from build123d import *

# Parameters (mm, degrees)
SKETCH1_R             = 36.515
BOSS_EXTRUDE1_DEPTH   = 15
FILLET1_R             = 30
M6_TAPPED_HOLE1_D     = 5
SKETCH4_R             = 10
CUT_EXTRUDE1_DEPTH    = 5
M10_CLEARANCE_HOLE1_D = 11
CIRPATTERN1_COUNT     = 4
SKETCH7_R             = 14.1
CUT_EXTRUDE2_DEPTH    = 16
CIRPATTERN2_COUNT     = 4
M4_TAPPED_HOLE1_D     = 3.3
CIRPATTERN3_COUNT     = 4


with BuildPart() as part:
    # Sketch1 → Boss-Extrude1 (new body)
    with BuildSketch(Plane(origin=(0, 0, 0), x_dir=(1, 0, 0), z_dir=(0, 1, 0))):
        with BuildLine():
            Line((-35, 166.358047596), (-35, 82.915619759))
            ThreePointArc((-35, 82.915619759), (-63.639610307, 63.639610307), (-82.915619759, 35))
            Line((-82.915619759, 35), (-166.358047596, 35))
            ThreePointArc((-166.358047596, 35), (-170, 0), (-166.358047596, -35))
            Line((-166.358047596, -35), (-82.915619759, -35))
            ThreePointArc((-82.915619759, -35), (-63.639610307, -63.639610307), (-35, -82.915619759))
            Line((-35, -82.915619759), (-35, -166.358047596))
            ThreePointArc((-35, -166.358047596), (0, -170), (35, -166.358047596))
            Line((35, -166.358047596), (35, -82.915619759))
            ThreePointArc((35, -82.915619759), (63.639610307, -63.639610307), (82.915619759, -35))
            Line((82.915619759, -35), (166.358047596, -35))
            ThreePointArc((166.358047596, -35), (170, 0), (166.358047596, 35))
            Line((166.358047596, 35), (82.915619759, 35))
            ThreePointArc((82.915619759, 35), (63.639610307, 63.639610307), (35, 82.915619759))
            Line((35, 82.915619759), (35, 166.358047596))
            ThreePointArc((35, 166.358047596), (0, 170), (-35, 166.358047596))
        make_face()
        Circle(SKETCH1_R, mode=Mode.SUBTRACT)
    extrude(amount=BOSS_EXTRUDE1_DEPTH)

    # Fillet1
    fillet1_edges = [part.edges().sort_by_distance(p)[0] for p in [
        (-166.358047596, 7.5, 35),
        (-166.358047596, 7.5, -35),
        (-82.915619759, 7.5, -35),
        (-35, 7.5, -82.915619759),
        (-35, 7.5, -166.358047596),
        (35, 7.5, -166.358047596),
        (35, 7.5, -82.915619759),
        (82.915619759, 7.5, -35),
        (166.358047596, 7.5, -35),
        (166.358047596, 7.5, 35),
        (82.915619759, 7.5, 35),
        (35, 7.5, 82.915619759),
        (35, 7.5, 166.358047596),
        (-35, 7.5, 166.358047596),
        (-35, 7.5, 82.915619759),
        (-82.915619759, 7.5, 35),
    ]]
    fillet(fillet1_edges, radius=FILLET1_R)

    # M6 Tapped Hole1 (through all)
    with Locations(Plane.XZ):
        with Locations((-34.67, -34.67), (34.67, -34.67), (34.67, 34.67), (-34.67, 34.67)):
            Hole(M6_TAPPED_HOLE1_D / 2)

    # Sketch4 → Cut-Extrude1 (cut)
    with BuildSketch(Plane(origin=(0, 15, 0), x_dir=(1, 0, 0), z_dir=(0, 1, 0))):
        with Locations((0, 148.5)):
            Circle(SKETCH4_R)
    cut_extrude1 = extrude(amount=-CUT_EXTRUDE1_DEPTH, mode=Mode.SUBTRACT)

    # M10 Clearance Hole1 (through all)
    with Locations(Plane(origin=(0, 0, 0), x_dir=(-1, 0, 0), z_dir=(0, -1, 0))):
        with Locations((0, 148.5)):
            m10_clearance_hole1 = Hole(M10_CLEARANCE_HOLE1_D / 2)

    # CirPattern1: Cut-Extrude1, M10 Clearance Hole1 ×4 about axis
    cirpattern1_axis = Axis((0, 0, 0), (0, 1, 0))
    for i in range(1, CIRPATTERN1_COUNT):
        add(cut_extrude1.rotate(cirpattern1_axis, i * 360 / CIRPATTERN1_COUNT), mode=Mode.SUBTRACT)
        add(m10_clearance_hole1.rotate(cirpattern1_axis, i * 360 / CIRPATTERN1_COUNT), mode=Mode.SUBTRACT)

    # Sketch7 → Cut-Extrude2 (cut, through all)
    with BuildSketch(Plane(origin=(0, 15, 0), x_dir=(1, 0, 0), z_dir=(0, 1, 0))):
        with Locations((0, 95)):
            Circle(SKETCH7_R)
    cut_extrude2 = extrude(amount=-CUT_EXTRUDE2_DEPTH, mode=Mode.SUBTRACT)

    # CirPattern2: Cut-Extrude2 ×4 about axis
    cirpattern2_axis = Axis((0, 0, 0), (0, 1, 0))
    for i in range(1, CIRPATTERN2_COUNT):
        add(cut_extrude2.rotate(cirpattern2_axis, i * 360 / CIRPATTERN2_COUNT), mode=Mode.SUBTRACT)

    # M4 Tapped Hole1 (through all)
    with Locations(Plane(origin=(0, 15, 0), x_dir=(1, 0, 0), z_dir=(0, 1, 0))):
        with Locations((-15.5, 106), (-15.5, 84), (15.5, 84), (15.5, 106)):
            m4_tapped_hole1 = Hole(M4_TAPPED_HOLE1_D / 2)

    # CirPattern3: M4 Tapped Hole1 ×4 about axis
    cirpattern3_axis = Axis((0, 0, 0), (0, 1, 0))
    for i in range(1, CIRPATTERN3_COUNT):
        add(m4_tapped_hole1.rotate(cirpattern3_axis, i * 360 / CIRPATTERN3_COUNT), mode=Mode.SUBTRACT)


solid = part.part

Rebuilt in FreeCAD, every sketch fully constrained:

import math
import FreeCAD as App
import Part
import Sketcher

V = App.Vector


def edges_at(feature, points):
    """Names of the edges that pass closest to the given points."""
    edges = feature.Shape.Edges
    near = lambda p: min(range(len(edges)), key=lambda i: edges[i].distToShape(Part.Vertex(*p))[0])
    return sorted({f"Edge{near(p) + 1}" for p in points})

doc = App.newDocument("Part")
params = doc.addObject("Spreadsheet::Sheet", "Params")
for row, (alias, value) in enumerate([
    ("sketch1_radius", "90 mm"),
    ("sketch1_radius2", "170 mm"),
    ("sketch1_diameter", "73.03 mm"),
    ("pad1_length", "15 mm"),
    ("fillet_radius", "30 mm"),
    ("sketch2_diameter", "5 mm"),
    ("hole_diameter", "5 mm"),
    ("sketch3_diameter", "20 mm"),
    ("pocket1_length", "5 mm"),
    ("sketch4_diameter", "11 mm"),
    ("hole2_diameter", "11 mm"),
    ("sketch5_diameter", "28.2 mm"),
    ("sketch6_diameter", "3.3 mm"),
    ("hole3_diameter", "3.3 mm"),
], start=1):
    params.set(f"A{row}", alias)
    params.set(f"B{row}", "=" + value)
    params.setAlias(f"B{row}", alias)

body = doc.addObject("PartDesign::Body", "Body")

# Sketch on XZ plane
sketch1 = doc.addObject("Sketcher::SketchObject", "Sketch")
body.addObject(sketch1)
sketch1.AttachmentSupport = (doc.XZ_Plane, [""])
sketch1.MapMode = "FlatFace"
sketch1.addGeometry(Part.LineSegment(V(-35, -166, 0), V(-35, -83, 0)), False)
sketch1.addGeometry(Part.ArcOfCircle(Part.Circle(V(0, 0, 0), V(0, 0, 1), 90), math.radians(-157), math.radians(-113)), False)
sketch1.addGeometry(Part.LineSegment(V(-83, -35, 0), V(-166, -35, 0)), False)
sketch1.addGeometry(Part.ArcOfCircle(Part.Circle(V(0, 0, 0), V(0, 0, 1), 170), math.radians(168), math.radians(192)), False)
sketch1.addGeometry(Part.LineSegment(V(-166, 35, 0), V(-83, 35, 0)), False)
sketch1.addGeometry(Part.ArcOfCircle(Part.Circle(V(0, 0, 0), V(0, 0, 1), 90), math.radians(113), math.radians(157)), False)
sketch1.addGeometry(Part.LineSegment(V(-35, 83, 0), V(-35, 166, 0)), False)
sketch1.addGeometry(Part.ArcOfCircle(Part.Circle(V(0, 0, 0), V(0, 0, 1), 170), math.radians(78), math.radians(102)), False)
sketch1.addGeometry(Part.LineSegment(V(35, 166, 0), V(35, 83, 0)), False)
sketch1.addGeometry(Part.ArcOfCircle(Part.Circle(V(0, 0, 0), V(0, 0, 1), 90), math.radians(23), math.radians(67)), False)
sketch1.addGeometry(Part.LineSegment(V(83, 35, 0), V(166, 35, 0)), False)
sketch1.addGeometry(Part.ArcOfCircle(Part.Circle(V(0, 0, 0), V(0, 0, 1), 170), math.radians(-12), math.radians(12)), False)
sketch1.addGeometry(Part.LineSegment(V(166, -35, 0), V(83, -35, 0)), False)
sketch1.addGeometry(Part.ArcOfCircle(Part.Circle(V(0, 0, 0), V(0, 0, 1), 90), math.radians(-67), math.radians(-23)), False)
sketch1.addGeometry(Part.LineSegment(V(35, -83, 0), V(35, -166, 0)), False)
sketch1.addGeometry(Part.ArcOfCircle(Part.Circle(V(0, 0, 0), V(0, 0, 1), 170), math.radians(-102), math.radians(-78)), False)
sketch1.addGeometry(Part.Circle(V(0, 0, 0), V(0, 0, 1), 37), False)
sketch1.addConstraint(Sketcher.Constraint("Coincident", 0, 2, 1, 2))
sketch1.addConstraint(Sketcher.Constraint("Coincident", 1, 1, 2, 1))
sketch1.addConstraint(Sketcher.Constraint("Coincident", 2, 2, 3, 2))
sketch1.addConstraint(Sketcher.Constraint("Coincident", 3, 1, 4, 1))
sketch1.addConstraint(Sketcher.Constraint("Coincident", 4, 2, 5, 2))
sketch1.addConstraint(Sketcher.Constraint("Coincident", 5, 1, 6, 1))
sketch1.addConstraint(Sketcher.Constraint("Coincident", 6, 2, 7, 2))
sketch1.addConstraint(Sketcher.Constraint("Coincident", 7, 1, 8, 1))
sketch1.addConstraint(Sketcher.Constraint("Coincident", 8, 2, 9, 2))
sketch1.addConstraint(Sketcher.Constraint("Coincident", 9, 1, 10, 1))
sketch1.addConstraint(Sketcher.Constraint("Coincident", 10, 2, 11, 2))
sketch1.addConstraint(Sketcher.Constraint("Coincident", 11, 1, 12, 1))
sketch1.addConstraint(Sketcher.Constraint("Coincident", 12, 2, 13, 2))
sketch1.addConstraint(Sketcher.Constraint("Coincident", 13, 1, 14, 1))
sketch1.addConstraint(Sketcher.Constraint("Coincident", 14, 2, 15, 2))
sketch1.addConstraint(Sketcher.Constraint("Coincident", 15, 1, 0, 1))
sketch1.addConstraint(Sketcher.Constraint("Vertical", 0))
sketch1.addConstraint(Sketcher.Constraint("Horizontal", 2))
sketch1.addConstraint(Sketcher.Constraint("Horizontal", 4))
sketch1.addConstraint(Sketcher.Constraint("Vertical", 6))
sketch1.addConstraint(Sketcher.Constraint("Vertical", 8))
sketch1.addConstraint(Sketcher.Constraint("Horizontal", 10))
sketch1.addConstraint(Sketcher.Constraint("Horizontal", 12))
sketch1.addConstraint(Sketcher.Constraint("Vertical", 14))
sketch1.addConstraint(Sketcher.Constraint("Coincident", 1, 3, -1, 1))
sketch1.addConstraint(Sketcher.Constraint("Coincident", 3, 3, -1, 1))
sketch1.addConstraint(Sketcher.Constraint("Coincident", 5, 3, -1, 1))
sketch1.addConstraint(Sketcher.Constraint("Coincident", 7, 3, -1, 1))
sketch1.addConstraint(Sketcher.Constraint("Coincident", 9, 3, -1, 1))
sketch1.addConstraint(Sketcher.Constraint("Coincident", 11, 3, -1, 1))
sketch1.addConstraint(Sketcher.Constraint("Coincident", 13, 3, -1, 1))
sketch1.addConstraint(Sketcher.Constraint("Coincident", 15, 3, -1, 1))
sketch1.addConstraint(Sketcher.Constraint("Coincident", 16, 3, -1, 1))
sketch1.addConstraint(Sketcher.Constraint("Equal", 1, 5))
sketch1.addConstraint(Sketcher.Constraint("Equal", 3, 7))
sketch1.addConstraint(Sketcher.Constraint("Equal", 5, 9))
sketch1.addConstraint(Sketcher.Constraint("Equal", 7, 11))
sketch1.addConstraint(Sketcher.Constraint("Equal", 9, 13))
sketch1.addConstraint(Sketcher.Constraint("Equal", 11, 15))
sketch1.addConstraint(Sketcher.Constraint("Horizontal", 6, 2, 7, 1))
sketch1.addConstraint(Sketcher.Constraint("Horizontal", 4, 2, 9, 1))
sketch1.addConstraint(Sketcher.Constraint("Horizontal", 2, 2, 11, 1))
sketch1.addConstraint(Sketcher.Constraint("Horizontal", 0, 2, 13, 1))
sketch1.addConstraint(Sketcher.Constraint("Vertical", 2, 2, 3, 1))
sketch1.addConstraint(Sketcher.Constraint("Vertical", 0, 2, 5, 1))
sketch1.addConstraint(Sketcher.Constraint("Equal", 12, 0))
sketch1.addConstraint(Sketcher.Constraint("Radius", 1, 90.0))
sketch1.addConstraint(Sketcher.Constraint("Radius", 3, 170.0))
sketch1.addConstraint(Sketcher.Constraint("Diameter", 16, 73.03))
sketch1.addConstraint(Sketcher.Constraint("DistanceX", 0, 2, -1, 1, 35.0))
sketch1.setExpression("Constraints[46]", "Params.sketch1_radius")
sketch1.setExpression("Constraints[47]", "Params.sketch1_radius2")
sketch1.setExpression("Constraints[48]", "Params.sketch1_diameter")
pad1 = doc.addObject("PartDesign::Pad", "Pad")
body.addObject(pad1)
pad1.Profile = sketch1
pad1.setExpression("Length", "Params.pad1_length")
pad1.Reversed = True
doc.recompute()

fillet = doc.addObject("PartDesign::Fillet", "Fillet")
body.addObject(fillet)
fillet.Base = (pad1, edges_at(pad1, [
    (-166.358, 7.5, 35),
    (-166.358, 7.5, -35),
    (-82.916, 7.5, -35),
    (-35, 7.5, -82.916),
    (-35, 7.5, -166.358),
    (35, 7.5, -166.358),
    (35, 7.5, -82.916),
    (82.916, 7.5, -35),
    (166.358, 7.5, -35),
    (166.358, 7.5, 35),
    (82.916, 7.5, 35),
    (35, 7.5, 82.916),
    (35, 7.5, 166.358),
    (-35, 7.5, 166.358),
    (-35, 7.5, 82.916),
    (-82.916, 7.5, 35),
]))
fillet.setExpression("Radius", "Params.fillet_radius")

# Sketch on XZ plane
sketch2 = doc.addObject("Sketcher::SketchObject", "Sketch001")
body.addObject(sketch2)
sketch2.AttachmentSupport = (doc.XZ_Plane, [""])
sketch2.MapMode = "FlatFace"
sketch2.addGeometry(Part.Circle(V(-34.7, -34.7, 0), V(0, 0, 1), 2.5), False)
sketch2.addGeometry(Part.Circle(V(34.7, -34.7, 0), V(0, 0, 1), 2.5), False)
sketch2.addGeometry(Part.Circle(V(34.7, 34.7, 0), V(0, 0, 1), 2.5), False)
sketch2.addGeometry(Part.Circle(V(-34.7, 34.7, 0), V(0, 0, 1), 2.5), False)
sketch2.addConstraint(Sketcher.Constraint("Equal", 0, 1))
sketch2.addConstraint(Sketcher.Constraint("Equal", 1, 2))
sketch2.addConstraint(Sketcher.Constraint("Equal", 2, 3))
sketch2.addConstraint(Sketcher.Constraint("Symmetric", 0, 3, 2, 3, -1, 1))
sketch2.addConstraint(Sketcher.Constraint("Symmetric", 1, 3, 3, 3, -1, 1))
sketch2.addConstraint(Sketcher.Constraint("Symmetric", 0, 3, 1, 3, -2))
sketch2.addConstraint(Sketcher.Constraint("Diameter", 0, 5.0))
sketch2.addConstraint(Sketcher.Constraint("DistanceX", 0, 3, -1, 1, 34.67))
sketch2.addConstraint(Sketcher.Constraint("DistanceY", 0, 3, -1, 1, 34.67))
sketch2.setExpression("Constraints[6]", "Params.sketch2_diameter")
doc.recompute()
hole = doc.addObject("PartDesign::Hole", "Hole")
body.addObject(hole)
hole.Profile = sketch2
hole.ThreadType = "None"
hole.setExpression("Diameter", "Params.hole_diameter")
hole.DepthType = "ThroughAll"

# Sketch on XZ plane
sketch3 = doc.addObject("Sketcher::SketchObject", "Sketch002")
body.addObject(sketch3)
sketch3.AttachmentSupport = (doc.XZ_Plane, [""])
sketch3.MapMode = "FlatFace"
sketch3.AttachmentOffset = App.Placement(V(0, 0, -15), App.Rotation())
sketch3.addGeometry(Part.Circle(V(0, -148, 0), V(0, 0, 1), 10), False)
sketch3.addConstraint(Sketcher.Constraint("PointOnObject", 0, 3, -2))
sketch3.addConstraint(Sketcher.Constraint("Diameter", 0, 20.0))
sketch3.addConstraint(Sketcher.Constraint("DistanceY", 0, 3, -1, 1, 148.5))
sketch3.setExpression("Constraints[1]", "Params.sketch3_diameter")
pocket1 = doc.addObject("PartDesign::Pocket", "Pocket")
body.addObject(pocket1)
pocket1.Profile = sketch3
pocket1.setExpression("Length", "Params.pocket1_length")
pocket1.Reversed = True

# Sketch on XZ plane
sketch4 = doc.addObject("Sketcher::SketchObject", "Sketch003")
body.addObject(sketch4)
sketch4.AttachmentSupport = (doc.XZ_Plane, [""])
sketch4.MapMode = "FlatFace"
sketch4.addGeometry(Part.Circle(V(0, -148, 0), V(0, 0, 1), 6), False)
sketch4.addConstraint(Sketcher.Constraint("PointOnObject", 0, 3, -2))
sketch4.addConstraint(Sketcher.Constraint("Diameter", 0, 11.0))
sketch4.addConstraint(Sketcher.Constraint("DistanceY", 0, 3, -1, 1, 148.5))
sketch4.setExpression("Constraints[1]", "Params.sketch4_diameter")
doc.recompute()
hole2 = doc.addObject("PartDesign::Hole", "Hole001")
body.addObject(hole2)
hole2.Profile = sketch4
hole2.ThreadType = "None"
hole2.setExpression("Diameter", "Params.hole2_diameter")
hole2.DepthType = "ThroughAll"
doc.recompute()

polarpattern = doc.addObject("PartDesign::PolarPattern", "PolarPattern")
body.addObject(polarpattern)
polarpattern.Originals = [pocket1, hole2]
polarpattern.Axis = (doc.Y_Axis, [""])
polarpattern.Angle = 360
polarpattern.Occurrences = 4
body.Tip = polarpattern

# Sketch on XZ plane
sketch5 = doc.addObject("Sketcher::SketchObject", "Sketch004")
body.addObject(sketch5)
sketch5.AttachmentSupport = (doc.XZ_Plane, [""])
sketch5.MapMode = "FlatFace"
sketch5.AttachmentOffset = App.Placement(V(0, 0, -15), App.Rotation())
sketch5.addGeometry(Part.Circle(V(0, -95, 0), V(0, 0, 1), 14), False)
sketch5.addConstraint(Sketcher.Constraint("PointOnObject", 0, 3, -2))
sketch5.addConstraint(Sketcher.Constraint("Diameter", 0, 28.2))
sketch5.addConstraint(Sketcher.Constraint("DistanceY", 0, 3, -1, 1, 95.0))
sketch5.setExpression("Constraints[1]", "Params.sketch5_diameter")
pocket2 = doc.addObject("PartDesign::Pocket", "Pocket001")
body.addObject(pocket2)
pocket2.Profile = sketch5
pocket2.Type = "ThroughAll"
pocket2.Reversed = True
doc.recompute()

polarpattern2 = doc.addObject("PartDesign::PolarPattern", "PolarPattern001")
body.addObject(polarpattern2)
polarpattern2.Originals = [pocket2]
polarpattern2.Axis = (doc.Y_Axis, [""])
polarpattern2.Angle = 360
polarpattern2.Occurrences = 4
body.Tip = polarpattern2

# Sketch on XZ plane
sketch6 = doc.addObject("Sketcher::SketchObject", "Sketch005")
body.addObject(sketch6)
sketch6.AttachmentSupport = (doc.XZ_Plane, [""])
sketch6.MapMode = "FlatFace"
sketch6.AttachmentOffset = App.Placement(V(0, 0, -15), App.Rotation())
sketch6.addGeometry(Part.Circle(V(-15.5, -106, 0), V(0, 0, 1), 1.6), False)
sketch6.addGeometry(Part.Circle(V(-15.5, -84, 0), V(0, 0, 1), 1.6), False)
sketch6.addGeometry(Part.Circle(V(15.5, -84, 0), V(0, 0, 1), 1.6), False)
sketch6.addGeometry(Part.Circle(V(15.5, -106, 0), V(0, 0, 1), 1.6), False)
sketch6.addConstraint(Sketcher.Constraint("Equal", 0, 1))
sketch6.addConstraint(Sketcher.Constraint("Equal", 1, 2))
sketch6.addConstraint(Sketcher.Constraint("Equal", 2, 3))
sketch6.addConstraint(Sketcher.Constraint("Symmetric", 1, 3, 2, 3, -2))
sketch6.addConstraint(Sketcher.Constraint("Symmetric", 0, 3, 3, 3, -2))
sketch6.addConstraint(Sketcher.Constraint("Vertical", 0, 3, 1, 3))
sketch6.addConstraint(Sketcher.Constraint("Diameter", 0, 3.3))
sketch6.addConstraint(Sketcher.Constraint("DistanceY", 0, 3, -1, 1, 106.0))
sketch6.addConstraint(Sketcher.Constraint("DistanceY", 1, 3, -1, 1, 84.0))
sketch6.addConstraint(Sketcher.Constraint("DistanceX", 1, 3, 2, 3, 31.0))
sketch6.setExpression("Constraints[6]", "Params.sketch6_diameter")
doc.recompute()
hole3 = doc.addObject("PartDesign::Hole", "Hole002")
body.addObject(hole3)
hole3.Profile = sketch6
hole3.ThreadType = "None"
hole3.setExpression("Diameter", "Params.hole3_diameter")
hole3.DepthType = "ThroughAll"
hole3.Reversed = True
doc.recompute()

polarpattern3 = doc.addObject("PartDesign::PolarPattern", "PolarPattern002")
body.addObject(polarpattern3)
polarpattern3.Originals = [hole3]
polarpattern3.Axis = (doc.Y_Axis, [""])
polarpattern3.Angle = 360
polarpattern3.Occurrences = 4
body.Tip = polarpattern3

doc.recompute()
